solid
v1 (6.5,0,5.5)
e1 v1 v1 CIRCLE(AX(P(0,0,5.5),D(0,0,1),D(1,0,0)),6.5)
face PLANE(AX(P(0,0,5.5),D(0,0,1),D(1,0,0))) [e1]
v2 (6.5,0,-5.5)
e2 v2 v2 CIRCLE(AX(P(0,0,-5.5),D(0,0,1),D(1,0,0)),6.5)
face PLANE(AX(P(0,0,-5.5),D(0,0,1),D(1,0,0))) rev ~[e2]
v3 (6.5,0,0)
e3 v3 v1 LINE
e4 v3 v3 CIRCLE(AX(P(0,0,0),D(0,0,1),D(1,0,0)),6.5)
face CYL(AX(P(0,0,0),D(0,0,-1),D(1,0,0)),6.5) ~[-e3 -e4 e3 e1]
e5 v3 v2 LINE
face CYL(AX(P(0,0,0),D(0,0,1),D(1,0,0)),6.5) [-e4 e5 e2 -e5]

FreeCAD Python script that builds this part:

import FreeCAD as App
import Part
import Sketcher
from FreeCAD import Vector
Q = App.Units.Quantity

doc = App.newDocument("Part")
body = doc.addObject("PartDesign::Body", "Body")

sketch1 = doc.addObject("Sketcher::SketchObject", "Sketch")
body.addObject(sketch1)
sketch1.AttachmentSupport = (doc.XY_Plane, [""])
sketch1.MapMode = "FlatFace"
sketch1.addGeometry(Part.Circle(Vector(0, 0, 0), Vector(0, 0, 1), 6), False)
sketch1.addConstraint(Sketcher.Constraint("Coincident", 0, 3, -1, 1))
sketch1.addConstraint(Sketcher.Constraint("Diameter", 0, Q("13 mm")))
pad1 = doc.addObject("PartDesign::Pad", "Pad")
body.addObject(pad1)
pad1.Profile = sketch1
pad1.Length = 11
pad1.Midplane = True

doc.recompute()
